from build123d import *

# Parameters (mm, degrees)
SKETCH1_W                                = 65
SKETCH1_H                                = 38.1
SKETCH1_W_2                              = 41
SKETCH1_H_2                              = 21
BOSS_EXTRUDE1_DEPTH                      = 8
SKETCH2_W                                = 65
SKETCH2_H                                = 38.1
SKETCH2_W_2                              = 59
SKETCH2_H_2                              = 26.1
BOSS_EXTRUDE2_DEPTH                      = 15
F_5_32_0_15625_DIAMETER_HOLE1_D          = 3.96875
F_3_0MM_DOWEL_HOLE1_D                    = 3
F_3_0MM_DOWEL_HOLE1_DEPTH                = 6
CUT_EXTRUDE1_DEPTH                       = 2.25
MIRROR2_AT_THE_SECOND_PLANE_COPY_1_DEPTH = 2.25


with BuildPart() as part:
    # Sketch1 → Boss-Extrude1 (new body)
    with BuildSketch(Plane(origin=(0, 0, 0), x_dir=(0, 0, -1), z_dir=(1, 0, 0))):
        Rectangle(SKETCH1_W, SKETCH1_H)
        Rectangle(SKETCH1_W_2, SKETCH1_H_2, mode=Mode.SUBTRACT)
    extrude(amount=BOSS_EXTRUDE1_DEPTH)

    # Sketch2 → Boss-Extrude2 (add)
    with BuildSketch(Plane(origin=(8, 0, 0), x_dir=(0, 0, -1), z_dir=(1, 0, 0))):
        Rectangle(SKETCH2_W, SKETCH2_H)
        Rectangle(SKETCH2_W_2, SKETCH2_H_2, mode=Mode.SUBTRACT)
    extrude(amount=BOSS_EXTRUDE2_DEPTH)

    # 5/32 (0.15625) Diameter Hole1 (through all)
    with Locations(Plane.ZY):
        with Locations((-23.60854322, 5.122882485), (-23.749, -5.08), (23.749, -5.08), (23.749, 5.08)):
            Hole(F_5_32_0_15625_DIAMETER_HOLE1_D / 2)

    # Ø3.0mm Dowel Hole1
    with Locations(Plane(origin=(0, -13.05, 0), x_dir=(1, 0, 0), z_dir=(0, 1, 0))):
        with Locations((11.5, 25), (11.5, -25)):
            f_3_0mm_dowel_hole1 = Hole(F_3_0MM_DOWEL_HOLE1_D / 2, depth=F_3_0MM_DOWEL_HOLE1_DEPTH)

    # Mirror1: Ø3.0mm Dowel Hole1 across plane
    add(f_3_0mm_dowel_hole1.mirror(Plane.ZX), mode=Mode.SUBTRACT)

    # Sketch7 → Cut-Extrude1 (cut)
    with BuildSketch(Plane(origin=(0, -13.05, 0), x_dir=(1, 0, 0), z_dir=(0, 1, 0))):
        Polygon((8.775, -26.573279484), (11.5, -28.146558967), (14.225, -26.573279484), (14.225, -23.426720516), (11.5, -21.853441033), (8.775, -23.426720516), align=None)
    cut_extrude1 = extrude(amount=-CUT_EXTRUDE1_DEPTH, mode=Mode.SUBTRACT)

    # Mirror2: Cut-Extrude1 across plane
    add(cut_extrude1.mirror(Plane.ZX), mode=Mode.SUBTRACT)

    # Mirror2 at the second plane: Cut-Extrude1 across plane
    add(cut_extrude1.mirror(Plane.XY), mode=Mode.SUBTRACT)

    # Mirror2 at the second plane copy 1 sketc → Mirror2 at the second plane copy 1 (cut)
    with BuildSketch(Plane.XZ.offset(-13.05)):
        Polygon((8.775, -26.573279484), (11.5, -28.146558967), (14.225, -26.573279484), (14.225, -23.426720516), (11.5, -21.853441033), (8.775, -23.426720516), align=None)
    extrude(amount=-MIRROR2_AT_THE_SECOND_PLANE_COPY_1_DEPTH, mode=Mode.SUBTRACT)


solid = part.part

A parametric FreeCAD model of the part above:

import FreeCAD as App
import Part
import Sketcher
from FreeCAD import Vector
Q = App.Units.Quantity

doc = App.newDocument("Part")
body = doc.addObject("PartDesign::Body", "Body")

sketch1 = doc.addObject("Sketcher::SketchObject", "Sketch")
body.addObject(sketch1)
sketch1.AttachmentSupport = (doc.YZ_Plane, [""])
sketch1.MapMode = "FlatFace"
sketch1.addGeometry([
    Part.LineSegment(Vector(19, 32, 0), Vector(-19, 32, 0)),
    Part.LineSegment(Vector(-19, 32, 0), Vector(-19, -32, 0)),
    Part.LineSegment(Vector(-19, -32, 0), Vector(19, -32, 0)),
    Part.LineSegment(Vector(19, -32, 0), Vector(19, 32, 0)),
    Part.LineSegment(Vector(-10, -20, 0), Vector(-10, 20, 0)),
    Part.LineSegment(Vector(-10, 20, 0), Vector(10, 20, 0)),
    Part.LineSegment(Vector(10, 20, 0), Vector(10, -20, 0)),
    Part.LineSegment(Vector(10, -20, 0), Vector(-10, -20, 0)),
], False)
sketch1.addConstraint([
    Sketcher.Constraint("Coincident", 0, 2, 1, 1),
    Sketcher.Constraint("Coincident", 1, 2, 2, 1),
    Sketcher.Constraint("Coincident", 2, 2, 3, 1),
    Sketcher.Constraint("Coincident", 3, 2, 0, 1),
    Sketcher.Constraint("Coincident", 4, 2, 5, 1),
    Sketcher.Constraint("Coincident", 5, 2, 6, 1),
    Sketcher.Constraint("Coincident", 6, 2, 7, 1),
    Sketcher.Constraint("Coincident", 7, 2, 4, 1),
    Sketcher.Constraint("Horizontal", 0),
    Sketcher.Constraint("Vertical", 1),
    Sketcher.Constraint("Horizontal", 2),
    Sketcher.Constraint("Vertical", 3),
    Sketcher.Constraint("Vertical", 4),
    Sketcher.Constraint("Horizontal", 5),
    Sketcher.Constraint("Vertical", 6),
    Sketcher.Constraint("Horizontal", 7),
    Sketcher.Constraint("Symmetric", 0, 2, 2, 2, -1, 1),
    Sketcher.Constraint("Symmetric", 4, 2, 6, 2, -1, 1),
    Sketcher.Constraint("DistanceX", 5, 1, 5, 2, Q("21 mm")),
    Sketcher.Constraint("DistanceY", 1, 2, 1, 1, Q("65 mm")),
    Sketcher.Constraint("DistanceY", 4, 1, 4, 2, Q("41 mm")),
    Sketcher.Constraint("DistanceX", 0, 2, 0, 1, Q("38.1 mm")),
])
pad1 = doc.addObject("PartDesign::Pad", "Pad")
body.addObject(pad1)
pad1.Profile = sketch1
pad1.Length = 8

sketch2 = doc.addObject("Sketcher::SketchObject", "Sketch001")
body.addObject(sketch2)
sketch2.AttachmentSupport = (doc.YZ_Plane, [""])
sketch2.MapMode = "FlatFace"
sketch2.AttachmentOffset = App.Placement(Vector(0, 0, 8), App.Rotation())
sketch2.addGeometry([
    Part.LineSegment(Vector(19, 32, 0), Vector(-19, 32, 0)),
    Part.LineSegment(Vector(-19, 32, 0), Vector(-19, -32, 0)),
    Part.LineSegment(Vector(-19, -32, 0), Vector(19, -32, 0)),
    Part.LineSegment(Vector(19, -32, 0), Vector(19, 32, 0)),
    Part.LineSegment(Vector(-13, -30, 0), Vector(-13, 30, 0)),
    Part.LineSegment(Vector(-13, 30, 0), Vector(13, 30, 0)),
    Part.LineSegment(Vector(13, 30, 0), Vector(13, -30, 0)),
    Part.LineSegment(Vector(13, -30, 0), Vector(-13, -30, 0)),
], False)
sketch2.addConstraint([
    Sketcher.Constraint("Coincident", 0, 2, 1, 1),
    Sketcher.Constraint("Coincident", 1, 2, 2, 1),
    Sketcher.Constraint("Coincident", 2, 2, 3, 1),
    Sketcher.Constraint("Coincident", 3, 2, 0, 1),
    Sketcher.Constraint("Coincident", 4, 2, 5, 1),
    Sketcher.Constraint("Coincident", 5, 2, 6, 1),
    Sketcher.Constraint("Coincident", 6, 2, 7, 1),
    Sketcher.Constraint("Coincident", 7, 2, 4, 1),
    Sketcher.Constraint("Horizontal", 0),
    Sketcher.Constraint("Vertical", 1),
    Sketcher.Constraint("Horizontal", 2),
    Sketcher.Constraint("Vertical", 3),
    Sketcher.Constraint("Vertical", 4),
    Sketcher.Constraint("Horizontal", 5),
    Sketcher.Constraint("Vertical", 6),
    Sketcher.Constraint("Horizontal", 7),
    Sketcher.Constraint("Symmetric", 0, 2, 2, 2, -1, 1),
    Sketcher.Constraint("Symmetric", 4, 2, 6, 2, -1, 1),
    Sketcher.Constraint("DistanceY", 1, 2, 1, 1, Q("65 mm")),
    Sketcher.Constraint("DistanceY", 4, 1, 4, 2, Q("59 mm")),
    Sketcher.Constraint("DistanceX", 0, 2, 0, 1, Q("38.1 mm")),
    Sketcher.Constraint("DistanceX", 5, 1, 5, 2, Q("26.1 mm")),
])
pad2 = doc.addObject("PartDesign::Pad", "Pad001")
body.addObject(pad2)
pad2.Profile = sketch2
pad2.Length = 15

sketch3 = doc.addObject("Sketcher::SketchObject", "Sketch002")
body.addObject(sketch3)
sketch3.AttachmentSupport = (doc.YZ_Plane, [""])
sketch3.MapMode = "FlatFace"
sketch3.addGeometry([
    Part.Circle(Vector(5.1, -23.6, 0), Vector(0, 0, 1), 2),
    Part.Circle(Vector(-5.1, -23.7, 0), Vector(0, 0, 1), 2),
    Part.Circle(Vector(-5.1, 23.7, 0), Vector(0, 0, 1), 2),
    Part.Circle(Vector(5.1, 23.7, 0), Vector(0, 0, 1), 2),
], False)
sketch3.addConstraint([
    Sketcher.Constraint("Equal", 0, 1),
    Sketcher.Constraint("Equal", 1, 2),
    Sketcher.Constraint("Equal", 2, 3),
    Sketcher.Constraint("Symmetric", 1, 3, 3, 3, -1, 1),
    Sketcher.Constraint("Symmetric", 2, 3, 3, 3, -2),
    Sketcher.Constraint("Diameter", 0, Q("3.96875 mm")),
    Sketcher.Constraint("DistanceX", 1, 3, -1, 1, Q("5.08 mm")),
    Sketcher.Constraint("DistanceY", 1, 3, -1, 1, Q("23.749 mm")),
    Sketcher.Constraint("DistanceX", -1, 1, 0, 3, Q("5.122882 mm")),
    Sketcher.Constraint("DistanceY", 0, 3, -1, 1, Q("23.608543 mm")),
])
doc.recompute()
hole = doc.addObject("PartDesign::Hole", "Hole")
body.addObject(hole)
hole.Profile = sketch3
hole.ThreadType = "None"
hole.Diameter = 3.96875
hole.DepthType = "ThroughAll"
hole.Reversed = True

sketch4 = doc.addObject("Sketcher::SketchObject", "Sketch003")
body.addObject(sketch4)
sketch4.AttachmentSupport = (doc.XZ_Plane, [""])
sketch4.MapMode = "FlatFace"
sketch4.AttachmentOffset = App.Placement(Vector(0, 0, 13.05), App.Rotation())
sketch4.addGeometry([
    Part.Circle(Vector(11.5, -25, 0), Vector(0, 0, 1), 1.5),
    Part.Circle(Vector(11.5, 25, 0), Vector(0, 0, 1), 1.5),
], False)
sketch4.addConstraint([
    Sketcher.Constraint("Equal", 0, 1),
    Sketcher.Constraint("Symmetric", 0, 3, 1, 3, -1),
    Sketcher.Constraint("Diameter", 0, Q("3 mm")),
    Sketcher.Constraint("DistanceY", 0, 3, -1, 1, Q("25 mm")),
    Sketcher.Constraint("DistanceX", -1, 1, 0, 3, Q("11.5 mm")),
])
doc.recompute()
hole2 = doc.addObject("PartDesign::Hole", "Hole001")
body.addObject(hole2)
hole2.Profile = sketch4
hole2.ThreadType = "None"
hole2.Diameter = 3
hole2.DepthType = "Dimension"
hole2.Depth = 6
hole2.DrillPoint = "Flat"
hole2.Reversed = True
doc.recompute()

mirrored = doc.addObject("PartDesign::Mirrored", "Mirrored")
body.addObject(mirrored)
mirrored.Originals = [hole2]
mirrored.MirrorPlane = (doc.XZ_Plane, [""])
body.Tip = mirrored

sketch5 = doc.addObject("Sketcher::SketchObject", "Sketch004")
body.addObject(sketch5)
sketch5.AttachmentSupport = (doc.XZ_Plane, [""])
sketch5.MapMode = "FlatFace"
sketch5.AttachmentOffset = App.Placement(Vector(0, 0, 13.05), App.Rotation())
sketch5.addGeometry([
    Part.LineSegment(Vector(8.8, 26.6, 0), Vector(11.5, 28.1, 0)),
    Part.LineSegment(Vector(11.5, 28.1, 0), Vector(14.2, 26.6, 0)),
    Part.LineSegment(Vector(14.2, 26.6, 0), Vector(14.2, 23.4, 0)),
    Part.LineSegment(Vector(14.2, 23.4, 0), Vector(11.5, 21.9, 0)),
    Part.LineSegment(Vector(11.5, 21.9, 0), Vector(8.8, 23.4, 0)),
    Part.LineSegment(Vector(8.8, 23.4, 0), Vector(8.8, 26.6, 0)),
], False)
sketch5.addConstraint([
    Sketcher.Constraint("Coincident", 0, 2, 1, 1),
    Sketcher.Constraint("Coincident", 1, 2, 2, 1),
    Sketcher.Constraint("Coincident", 2, 2, 3, 1),
    Sketcher.Constraint("Coincident", 3, 2, 4, 1),
    Sketcher.Constraint("Coincident", 4, 2, 5, 1),
    Sketcher.Constraint("Coincident", 5, 2, 0, 1),
    Sketcher.Constraint("Vertical", 2),
    Sketcher.Constraint("Vertical", 5),
    Sketcher.Constraint("Parallel", 0, 3),
    Sketcher.Constraint("Parallel", 1, 4),
    Sketcher.Constraint("Horizontal", 2, 2, 4, 2),
    Sketcher.Constraint("Horizontal", 1, 2, 5, 2),
    Sketcher.Constraint("Vertical", 0, 2, 3, 2),
    Sketcher.Constraint("Angle", 0, Q("30 deg")),
    Sketcher.Constraint("DistanceX", -1, 1, 0, 2, Q("11.5 mm")),
    Sketcher.Constraint("DistanceX", 4, 2, 2, 2, Q("5.45 mm")),
    Sketcher.Constraint("DistanceY", 2, 2, 2, 1, Q("3.146559 mm")),
    Sketcher.Constraint("DistanceY", -1, 1, 0, 2, Q("28.146559 mm")),
])
pocket1 = doc.addObject("PartDesign::Pocket", "Pocket")
body.addObject(pocket1)
pocket1.Profile = sketch5
pocket1.Length = 2.25
pocket1.Reversed = True
doc.recompute()

mirrored2 = doc.addObject("PartDesign::Mirrored", "Mirrored001")
body.addObject(mirrored2)
mirrored2.Originals = [pocket1]
mirrored2.MirrorPlane = (doc.XZ_Plane, [""])
body.Tip = mirrored2
doc.recompute()

mirrored3 = doc.addObject("PartDesign::Mirrored", "Mirrored002")
body.addObject(mirrored3)
mirrored3.Originals = [pocket1]
mirrored3.MirrorPlane = (doc.XY_Plane, [""])
body.Tip = mirrored3

sketch6 = doc.addObject("Sketcher::SketchObject", "Sketch005")
body.addObject(sketch6)
sketch6.AttachmentSupport = (doc.XZ_Plane, [""])
sketch6.MapMode = "FlatFace"
sketch6.AttachmentOffset = App.Placement(Vector(0, 0, -13.05), App.Rotation())
sketch6.addGeometry([
    Part.LineSegment(Vector(8.8, -26.6, 0), Vector(11.5, -28.1, 0)),
    Part.LineSegment(Vector(11.5, -28.1, 0), Vector(14.2, -26.6, 0)),
    Part.LineSegment(Vector(14.2, -26.6, 0), Vector(14.2, -23.4, 0)),
    Part.LineSegment(Vector(14.2, -23.4, 0), Vector(11.5, -21.9, 0)),
    Part.LineSegment(Vector(11.5, -21.9, 0), Vector(8.8, -23.4, 0)),
    Part.LineSegment(Vector(8.8, -23.4, 0), Vector(8.8, -26.6, 0)),
], False)
sketch6.addConstraint([
    Sketcher.Constraint("Coincident", 0, 2, 1, 1),
    Sketcher.Constraint("Coincident", 1, 2, 2, 1),
    Sketcher.Constraint("Coincident", 2, 2, 3, 1),
    Sketcher.Constraint("Coincident", 3, 2, 4, 1),
    Sketcher.Constraint("Coincident", 4, 2, 5, 1),
    Sketcher.Constraint("Coincident", 5, 2, 0, 1),
    Sketcher.Constraint("Vertical", 2),
    Sketcher.Constraint("Vertical", 5),
    Sketcher.Constraint("Parallel", 0, 3),
    Sketcher.Constraint("Parallel", 1, 4),
    Sketcher.Constraint("Horizontal", 2, 2, 4, 2),
    Sketcher.Constraint("Horizontal", 1, 2, 5, 2),
    Sketcher.Constraint("Vertical", 0, 2, 3, 2),
    Sketcher.Constraint("Angle", 0, Q("-30 deg")),
    Sketcher.Constraint("DistanceX", -1, 1, 0, 2, Q("11.5 mm")),
    Sketcher.Constraint("DistanceX", 4, 2, 2, 2, Q("5.45 mm")),
    Sketcher.Constraint("DistanceY", 2, 1, 2, 2, Q("3.146559 mm")),
    Sketcher.Constraint("DistanceY", 0, 2, -1, 1, Q("28.146559 mm")),
])
pocket2 = doc.addObject("PartDesign::Pocket", "Pocket001")
body.addObject(pocket2)
pocket2.Profile = sketch6
pocket2.Length = 2.25

doc.recompute()
